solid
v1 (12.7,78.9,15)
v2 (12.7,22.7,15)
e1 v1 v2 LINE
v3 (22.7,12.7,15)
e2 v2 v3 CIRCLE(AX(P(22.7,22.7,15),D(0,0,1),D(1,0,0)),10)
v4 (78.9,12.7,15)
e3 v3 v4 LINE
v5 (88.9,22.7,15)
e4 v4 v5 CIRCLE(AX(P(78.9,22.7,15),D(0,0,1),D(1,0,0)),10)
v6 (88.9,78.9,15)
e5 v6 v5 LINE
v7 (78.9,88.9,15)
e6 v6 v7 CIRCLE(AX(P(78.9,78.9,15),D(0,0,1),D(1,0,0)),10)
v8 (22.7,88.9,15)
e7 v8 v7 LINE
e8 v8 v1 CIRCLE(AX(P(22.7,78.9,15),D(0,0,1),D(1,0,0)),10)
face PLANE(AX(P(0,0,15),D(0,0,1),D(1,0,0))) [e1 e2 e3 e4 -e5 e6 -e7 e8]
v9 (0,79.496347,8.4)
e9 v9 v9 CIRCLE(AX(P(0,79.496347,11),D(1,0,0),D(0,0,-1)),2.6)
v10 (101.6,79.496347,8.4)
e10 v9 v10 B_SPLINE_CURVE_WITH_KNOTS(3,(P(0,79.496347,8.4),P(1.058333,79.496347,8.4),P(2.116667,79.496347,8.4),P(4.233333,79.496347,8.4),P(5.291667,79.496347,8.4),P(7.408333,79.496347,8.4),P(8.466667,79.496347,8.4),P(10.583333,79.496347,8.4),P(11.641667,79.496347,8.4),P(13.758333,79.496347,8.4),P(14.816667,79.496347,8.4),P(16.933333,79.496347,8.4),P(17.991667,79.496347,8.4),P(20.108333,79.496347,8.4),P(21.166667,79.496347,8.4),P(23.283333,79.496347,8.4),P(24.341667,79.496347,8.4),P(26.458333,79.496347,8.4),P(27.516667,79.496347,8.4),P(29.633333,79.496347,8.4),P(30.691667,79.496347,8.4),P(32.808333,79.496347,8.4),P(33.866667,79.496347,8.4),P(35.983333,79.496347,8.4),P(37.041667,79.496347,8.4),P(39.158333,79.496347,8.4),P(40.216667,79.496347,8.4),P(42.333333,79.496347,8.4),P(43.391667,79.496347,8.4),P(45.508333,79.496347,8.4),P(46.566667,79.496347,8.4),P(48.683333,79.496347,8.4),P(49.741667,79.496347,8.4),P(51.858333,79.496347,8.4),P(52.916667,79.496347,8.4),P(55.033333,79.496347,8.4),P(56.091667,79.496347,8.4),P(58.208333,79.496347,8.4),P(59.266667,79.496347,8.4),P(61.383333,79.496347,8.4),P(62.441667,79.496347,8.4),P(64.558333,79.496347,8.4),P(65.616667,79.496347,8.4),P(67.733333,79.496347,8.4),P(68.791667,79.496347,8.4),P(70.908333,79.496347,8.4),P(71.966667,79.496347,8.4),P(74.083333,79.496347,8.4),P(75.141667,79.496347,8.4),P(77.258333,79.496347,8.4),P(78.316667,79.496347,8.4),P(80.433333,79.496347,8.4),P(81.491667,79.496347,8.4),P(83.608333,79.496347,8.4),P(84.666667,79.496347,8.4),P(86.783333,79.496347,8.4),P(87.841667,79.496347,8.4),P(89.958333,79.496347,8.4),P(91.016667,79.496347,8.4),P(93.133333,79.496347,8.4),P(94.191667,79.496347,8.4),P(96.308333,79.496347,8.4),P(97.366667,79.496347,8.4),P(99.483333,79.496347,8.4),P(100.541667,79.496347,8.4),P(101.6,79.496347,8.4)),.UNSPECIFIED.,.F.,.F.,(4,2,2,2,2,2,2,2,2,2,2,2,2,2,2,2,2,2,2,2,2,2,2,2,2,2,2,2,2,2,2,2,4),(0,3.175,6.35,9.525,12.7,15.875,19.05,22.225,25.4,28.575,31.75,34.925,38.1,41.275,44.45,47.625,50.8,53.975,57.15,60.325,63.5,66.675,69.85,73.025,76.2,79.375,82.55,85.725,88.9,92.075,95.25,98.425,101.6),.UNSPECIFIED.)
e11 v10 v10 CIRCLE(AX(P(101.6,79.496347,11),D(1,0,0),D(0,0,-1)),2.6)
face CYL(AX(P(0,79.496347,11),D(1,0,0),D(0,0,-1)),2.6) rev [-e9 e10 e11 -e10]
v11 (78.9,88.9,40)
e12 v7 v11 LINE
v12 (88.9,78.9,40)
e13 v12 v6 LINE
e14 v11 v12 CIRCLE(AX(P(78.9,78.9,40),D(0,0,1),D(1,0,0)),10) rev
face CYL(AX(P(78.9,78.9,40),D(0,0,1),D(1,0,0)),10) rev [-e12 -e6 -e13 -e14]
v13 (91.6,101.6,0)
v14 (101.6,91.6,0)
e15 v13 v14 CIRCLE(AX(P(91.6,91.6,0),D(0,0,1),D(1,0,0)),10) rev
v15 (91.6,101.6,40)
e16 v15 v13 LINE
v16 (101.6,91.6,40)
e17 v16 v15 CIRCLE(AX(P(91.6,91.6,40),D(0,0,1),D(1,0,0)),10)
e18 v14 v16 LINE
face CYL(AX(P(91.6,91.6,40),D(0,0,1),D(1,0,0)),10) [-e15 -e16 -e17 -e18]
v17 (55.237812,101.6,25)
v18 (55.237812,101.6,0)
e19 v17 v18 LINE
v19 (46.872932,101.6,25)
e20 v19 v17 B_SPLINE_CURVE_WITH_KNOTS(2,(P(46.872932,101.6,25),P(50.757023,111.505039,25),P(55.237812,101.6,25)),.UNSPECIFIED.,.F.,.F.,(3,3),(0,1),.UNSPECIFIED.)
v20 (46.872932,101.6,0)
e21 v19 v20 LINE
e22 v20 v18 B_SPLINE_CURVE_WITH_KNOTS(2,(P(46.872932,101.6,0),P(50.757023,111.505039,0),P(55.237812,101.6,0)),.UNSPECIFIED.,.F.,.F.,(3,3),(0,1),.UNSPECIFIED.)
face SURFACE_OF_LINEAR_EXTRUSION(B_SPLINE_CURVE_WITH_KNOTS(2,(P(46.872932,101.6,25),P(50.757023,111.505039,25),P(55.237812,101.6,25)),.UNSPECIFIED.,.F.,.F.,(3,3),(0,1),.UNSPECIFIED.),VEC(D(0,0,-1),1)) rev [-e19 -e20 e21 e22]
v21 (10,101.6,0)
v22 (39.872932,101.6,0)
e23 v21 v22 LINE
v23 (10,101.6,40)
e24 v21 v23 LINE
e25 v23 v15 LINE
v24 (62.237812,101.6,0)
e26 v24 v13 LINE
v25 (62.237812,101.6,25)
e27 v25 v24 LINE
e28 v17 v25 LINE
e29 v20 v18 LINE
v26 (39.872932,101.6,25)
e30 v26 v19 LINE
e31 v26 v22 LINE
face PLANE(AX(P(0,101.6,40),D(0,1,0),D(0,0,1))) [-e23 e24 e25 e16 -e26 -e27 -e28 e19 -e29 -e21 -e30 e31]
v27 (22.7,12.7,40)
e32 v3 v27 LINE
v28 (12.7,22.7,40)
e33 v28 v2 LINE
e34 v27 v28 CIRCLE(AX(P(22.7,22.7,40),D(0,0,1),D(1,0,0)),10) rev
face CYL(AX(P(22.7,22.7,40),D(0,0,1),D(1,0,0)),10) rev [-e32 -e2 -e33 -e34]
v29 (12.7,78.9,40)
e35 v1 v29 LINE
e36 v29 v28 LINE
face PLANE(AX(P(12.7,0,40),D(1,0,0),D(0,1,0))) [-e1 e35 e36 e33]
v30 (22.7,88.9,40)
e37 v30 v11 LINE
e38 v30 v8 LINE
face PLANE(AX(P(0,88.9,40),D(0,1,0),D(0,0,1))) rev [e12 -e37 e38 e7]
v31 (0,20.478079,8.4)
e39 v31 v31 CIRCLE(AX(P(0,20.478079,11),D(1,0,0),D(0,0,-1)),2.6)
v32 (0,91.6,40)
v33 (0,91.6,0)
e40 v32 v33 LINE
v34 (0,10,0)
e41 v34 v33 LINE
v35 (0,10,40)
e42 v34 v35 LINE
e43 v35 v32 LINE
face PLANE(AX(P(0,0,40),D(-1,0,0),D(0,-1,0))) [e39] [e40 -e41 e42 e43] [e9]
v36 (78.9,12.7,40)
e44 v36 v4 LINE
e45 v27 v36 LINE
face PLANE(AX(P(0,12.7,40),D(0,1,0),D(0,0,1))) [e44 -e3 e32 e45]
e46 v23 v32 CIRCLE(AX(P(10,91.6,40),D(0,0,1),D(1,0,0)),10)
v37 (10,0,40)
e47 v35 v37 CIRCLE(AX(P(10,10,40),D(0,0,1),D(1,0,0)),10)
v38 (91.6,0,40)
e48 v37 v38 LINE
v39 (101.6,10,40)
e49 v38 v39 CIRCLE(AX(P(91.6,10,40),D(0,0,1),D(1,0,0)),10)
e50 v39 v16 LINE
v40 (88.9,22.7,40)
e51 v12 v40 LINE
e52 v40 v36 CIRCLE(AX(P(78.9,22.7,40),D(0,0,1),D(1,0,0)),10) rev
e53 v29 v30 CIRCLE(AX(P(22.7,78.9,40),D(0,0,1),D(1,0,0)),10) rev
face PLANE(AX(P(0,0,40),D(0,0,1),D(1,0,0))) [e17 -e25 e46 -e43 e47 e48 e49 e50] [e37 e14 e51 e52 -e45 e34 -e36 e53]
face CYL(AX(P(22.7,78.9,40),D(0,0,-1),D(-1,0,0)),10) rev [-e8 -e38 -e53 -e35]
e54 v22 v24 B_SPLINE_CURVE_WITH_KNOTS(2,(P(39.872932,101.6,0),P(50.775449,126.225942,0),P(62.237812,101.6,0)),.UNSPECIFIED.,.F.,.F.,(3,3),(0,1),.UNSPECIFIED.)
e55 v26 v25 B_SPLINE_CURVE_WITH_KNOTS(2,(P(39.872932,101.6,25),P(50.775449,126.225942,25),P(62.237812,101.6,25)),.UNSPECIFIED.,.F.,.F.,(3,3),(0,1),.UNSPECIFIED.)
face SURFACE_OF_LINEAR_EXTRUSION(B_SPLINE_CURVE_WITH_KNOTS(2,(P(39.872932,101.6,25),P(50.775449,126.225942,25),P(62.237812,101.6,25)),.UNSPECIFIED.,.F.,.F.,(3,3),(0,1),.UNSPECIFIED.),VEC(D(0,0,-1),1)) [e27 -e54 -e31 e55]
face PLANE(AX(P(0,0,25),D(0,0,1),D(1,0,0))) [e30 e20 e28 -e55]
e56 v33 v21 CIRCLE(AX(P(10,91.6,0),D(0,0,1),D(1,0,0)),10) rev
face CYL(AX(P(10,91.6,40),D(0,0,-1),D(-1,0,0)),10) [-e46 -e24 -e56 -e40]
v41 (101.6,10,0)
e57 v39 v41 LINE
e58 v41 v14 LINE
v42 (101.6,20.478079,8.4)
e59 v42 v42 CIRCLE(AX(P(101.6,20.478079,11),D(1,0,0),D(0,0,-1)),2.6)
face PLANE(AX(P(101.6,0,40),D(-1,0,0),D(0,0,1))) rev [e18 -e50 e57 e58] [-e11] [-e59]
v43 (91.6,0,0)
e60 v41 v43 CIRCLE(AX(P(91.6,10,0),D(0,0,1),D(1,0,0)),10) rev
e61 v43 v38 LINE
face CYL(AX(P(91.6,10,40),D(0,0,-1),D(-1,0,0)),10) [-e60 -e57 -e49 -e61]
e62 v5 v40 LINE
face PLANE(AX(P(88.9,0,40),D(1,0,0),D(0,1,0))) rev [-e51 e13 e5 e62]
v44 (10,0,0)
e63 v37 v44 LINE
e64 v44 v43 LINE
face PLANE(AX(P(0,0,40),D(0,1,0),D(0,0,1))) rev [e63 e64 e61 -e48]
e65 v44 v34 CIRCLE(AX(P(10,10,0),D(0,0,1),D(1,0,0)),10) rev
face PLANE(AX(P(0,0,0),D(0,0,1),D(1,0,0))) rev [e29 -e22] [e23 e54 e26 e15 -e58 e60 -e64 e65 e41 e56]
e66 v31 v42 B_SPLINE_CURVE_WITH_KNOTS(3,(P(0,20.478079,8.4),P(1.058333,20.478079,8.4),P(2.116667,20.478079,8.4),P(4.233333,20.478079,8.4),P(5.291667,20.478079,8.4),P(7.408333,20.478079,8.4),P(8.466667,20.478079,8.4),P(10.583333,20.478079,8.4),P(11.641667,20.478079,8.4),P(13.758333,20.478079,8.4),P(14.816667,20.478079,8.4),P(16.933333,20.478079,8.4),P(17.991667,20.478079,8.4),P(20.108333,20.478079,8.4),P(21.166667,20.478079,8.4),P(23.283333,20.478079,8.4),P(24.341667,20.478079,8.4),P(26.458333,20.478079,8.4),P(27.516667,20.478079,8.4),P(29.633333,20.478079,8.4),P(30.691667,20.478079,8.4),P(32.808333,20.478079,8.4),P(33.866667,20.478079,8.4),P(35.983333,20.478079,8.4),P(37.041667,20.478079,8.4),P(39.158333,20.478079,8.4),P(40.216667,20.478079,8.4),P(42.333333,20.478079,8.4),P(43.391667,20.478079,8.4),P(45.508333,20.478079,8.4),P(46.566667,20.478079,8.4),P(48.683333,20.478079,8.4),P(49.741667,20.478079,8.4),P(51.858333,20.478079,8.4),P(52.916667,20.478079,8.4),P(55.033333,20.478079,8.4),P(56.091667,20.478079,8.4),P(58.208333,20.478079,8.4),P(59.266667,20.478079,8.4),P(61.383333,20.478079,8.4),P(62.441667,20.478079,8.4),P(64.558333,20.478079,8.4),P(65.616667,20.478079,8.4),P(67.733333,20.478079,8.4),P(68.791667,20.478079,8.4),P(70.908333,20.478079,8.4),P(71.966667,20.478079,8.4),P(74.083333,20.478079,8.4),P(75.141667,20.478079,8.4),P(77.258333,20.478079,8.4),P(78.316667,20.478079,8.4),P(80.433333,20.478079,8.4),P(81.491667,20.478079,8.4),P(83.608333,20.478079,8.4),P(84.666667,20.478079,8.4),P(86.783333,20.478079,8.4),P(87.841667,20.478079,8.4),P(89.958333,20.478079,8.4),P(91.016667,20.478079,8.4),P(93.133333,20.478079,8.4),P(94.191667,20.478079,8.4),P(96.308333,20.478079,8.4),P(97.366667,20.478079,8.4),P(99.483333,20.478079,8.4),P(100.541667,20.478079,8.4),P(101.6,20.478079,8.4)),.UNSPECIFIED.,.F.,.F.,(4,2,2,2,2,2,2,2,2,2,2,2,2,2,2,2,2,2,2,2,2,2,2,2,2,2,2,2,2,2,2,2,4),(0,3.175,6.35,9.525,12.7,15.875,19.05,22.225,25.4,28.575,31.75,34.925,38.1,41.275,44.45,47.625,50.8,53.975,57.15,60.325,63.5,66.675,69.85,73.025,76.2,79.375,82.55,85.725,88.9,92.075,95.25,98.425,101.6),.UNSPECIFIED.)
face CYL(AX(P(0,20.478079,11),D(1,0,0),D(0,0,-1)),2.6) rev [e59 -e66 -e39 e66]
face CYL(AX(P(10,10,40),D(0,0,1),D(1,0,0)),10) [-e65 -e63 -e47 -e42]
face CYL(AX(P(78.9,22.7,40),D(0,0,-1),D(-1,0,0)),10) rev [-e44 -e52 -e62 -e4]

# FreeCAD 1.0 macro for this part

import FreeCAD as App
import Part
import Sketcher

V = App.Vector


def edges_at(feature, points):
    """Names of the edges that pass closest to the given points."""
    edges = feature.Shape.Edges
    near = lambda p: min(range(len(edges)), key=lambda i: edges[i].distToShape(Part.Vertex(*p))[0])
    return sorted({f"Edge{near(p) + 1}" for p in points})


def add_polygon(sketch, points):
    """Adds a closed chain of lines whose ends are joined by coincident constraints."""
    first, n = sketch.GeometryCount, len(points)
    for a, b in zip(points, points[1:] + points[:1]):
        sketch.addGeometry(Part.LineSegment(App.Vector(*a, 0), App.Vector(*b, 0)), False)
    for i in range(n):
        sketch.addConstraint(Sketcher.Constraint("Coincident", first + i, 2, first + (i + 1) % n, 1))

doc = App.newDocument("Part")
body = doc.addObject("PartDesign::Body", "Body")

# Sketch on XY plane
sketch1 = body.newObject("Sketcher::SketchObject", "Sketch")
sketch1.AttachmentSupport = (doc.getObject("XY_Plane"), [""])
sketch1.MapMode = "FlatFace"
add_polygon(sketch1, [(0, 102), (0, 0), (102, 0), (102, 102)])  # lines 0-3
add_polygon(sketch1, [(89, 13), (13, 13), (13, 89), (89, 89)])  # lines 4-7
sketch1.addConstraint([
    Sketcher.Constraint("Vertical", 0),
    Sketcher.Constraint("Horizontal", 1),
    Sketcher.Constraint("Vertical", 2),
    Sketcher.Constraint("Horizontal", 3),
    Sketcher.Constraint("Horizontal", 4),
    Sketcher.Constraint("Vertical", 5),
    Sketcher.Constraint("Horizontal", 6),
    Sketcher.Constraint("Vertical", 7),
    Sketcher.Constraint("Coincident", 0, 2, -1, 1),
    Sketcher.Constraint("Equal", 3, 0),
    Sketcher.Constraint("Equal", 6, 5),
    Sketcher.Constraint("DistanceX", 1, 1, 1, 2, 101.6),
    Sketcher.Constraint("DistanceX", 4, 2, 4, 1, 76.2),
    Sketcher.Constraint("DistanceX", -1, 1, 4, 2, 12.7),
    Sketcher.Constraint("DistanceY", -1, 1, 4, 2, 12.7),
])
pad1 = body.newObject("PartDesign::Pad", "Pad")
pad1.Profile = sketch1
pad1.Length = 40

# Sketch on XY plane
sketch2 = body.newObject("Sketcher::SketchObject", "Sketch001")
sketch2.AttachmentSupport = (doc.getObject("XY_Plane"), [""])
sketch2.MapMode = "FlatFace"
add_polygon(sketch2, [(13, 89), (13, 13), (89, 13), (89, 89)])  # lines 0-3
sketch2.addConstraint([
    Sketcher.Constraint("Vertical", 0),
    Sketcher.Constraint("Horizontal", 1),
    Sketcher.Constraint("Vertical", 2),
    Sketcher.Constraint("Horizontal", 3),
    Sketcher.Constraint("Equal", 3, 0),
    Sketcher.Constraint("DistanceX", 1, 1, 1, 2, 76.2),
    Sketcher.Constraint("DistanceX", -1, 1, 0, 2, 12.7),
    Sketcher.Constraint("DistanceY", -1, 1, 0, 2, 12.7),
])
pad2 = body.newObject("PartDesign::Pad", "Pad001")
pad2.Profile = sketch2
pad2.Length = 15

# Sketch on XY plane
sketch3 = body.newObject("Sketcher::SketchObject", "Sketch002")
sketch3.AttachmentSupport = (doc.getObject("XY_Plane"), [""])
sketch3.MapMode = "FlatFace"
sketch3.addGeometry([
    Part.BSplineCurve([V(39.872932, 101.6, 0), V(50.775449, 126.225942, 0), V(62.237812, 101.6, 0)], [3, 3], [0, 1], False, 2, [1, 1, 1], False),
    Part.LineSegment(V(39.872932, 101.6, 0), V(46.872932, 101.6, 0)),
    Part.BSplineCurve([V(46.872932, 101.6, 0), V(50.757023, 111.505039, 0), V(55.237812, 101.6, 0)], [3, 3], [0, 1], False, 2, [1, 1, 1], False),
    Part.LineSegment(V(55.237812, 101.6, 0), V(62.237812, 101.6, 0)),
], False)
sketch3.addConstraint([
    Sketcher.Constraint("Block", 0),
    Sketcher.Constraint("Block", 2),
    Sketcher.Constraint("Coincident", 0, 1, 1, 1),
    Sketcher.Constraint("Coincident", 1, 2, 2, 1),
    Sketcher.Constraint("Coincident", 2, 2, 3, 1),
    Sketcher.Constraint("Coincident", 3, 2, 0, 2),
])
pad3 = body.newObject("PartDesign::Pad", "Pad002")
pad3.Profile = sketch3
pad3.Length = 25
doc.recompute()

fillet = body.newObject("PartDesign::Fillet", "Fillet")
fillet.Base = (pad3, edges_at(pad3, [(0, 101.6, 20)]))
fillet.Radius = 10
doc.recompute()

fillet2 = body.newObject("PartDesign::Fillet", "Fillet001")
fillet2.Base = (fillet, edges_at(fillet, [(0, 0, 20)]))
fillet2.Radius = 10
doc.recompute()

fillet3 = body.newObject("PartDesign::Fillet", "Fillet002")
fillet3.Base = (fillet2, edges_at(fillet2, [(101.6, 0, 20)]))
fillet3.Radius = 10
doc.recompute()

fillet4 = body.newObject("PartDesign::Fillet", "Fillet003")
fillet4.Base = (fillet3, edges_at(fillet3, [(101.6, 101.6, 20)]))
fillet4.Radius = 10

# Sketch on YZ plane
sketch4 = body.newObject("Sketcher::SketchObject", "Sketch003")
sketch4.AttachmentSupport = (doc.getObject("YZ_Plane"), [""])
sketch4.MapMode = "FlatFace"
sketch4.AttachmentOffset = App.Placement(V(0, 0, 101.6), App.Rotation())
sketch4.addGeometry([
    Part.Circle(V(79.5, 11, 0), V(0, 0, 1), 2.6),
    Part.Circle(V(20.5, 11, 0), V(0, 0, 1), 2.6),
], False)
sketch4.addConstraint([
    Sketcher.Constraint("Equal", 0, 1),
    Sketcher.Constraint("Horizontal", 0, 3, 1, 3),
    Sketcher.Constraint("Diameter", 0, 5.2),
    Sketcher.Constraint("DistanceY", -1, 1, 0, 3, 11.0),
    Sketcher.Constraint("DistanceX", -1, 1, 1, 3, 20.478079),
    Sketcher.Constraint("DistanceX", -1, 1, 0, 3, 79.496347),
])
pocket1 = body.newObject("PartDesign::Pocket", "Pocket")
pocket1.Profile = sketch4
pocket1.Type = "ThroughAll"
doc.recompute()

fillet5 = body.newObject("PartDesign::Fillet", "Fillet004")
fillet5.Base = (pocket1, edges_at(pocket1, [(12.7, 88.9, 27.5)]))
fillet5.Radius = 10
doc.recompute()

fillet6 = body.newObject("PartDesign::Fillet", "Fillet005")
fillet6.Base = (fillet5, edges_at(fillet5, [(88.9, 88.9, 27.5)]))
fillet6.Radius = 10
doc.recompute()

fillet7 = body.newObject("PartDesign::Fillet", "Fillet006")
fillet7.Base = (fillet6, edges_at(fillet6, [(12.7, 12.7, 27.5)]))
fillet7.Radius = 10
doc.recompute()

fillet8 = body.newObject("PartDesign::Fillet", "Fillet007")
fillet8.Base = (fillet7, edges_at(fillet7, [(88.9, 12.7, 27.5)]))
fillet8.Radius = 10

doc.recompute()
